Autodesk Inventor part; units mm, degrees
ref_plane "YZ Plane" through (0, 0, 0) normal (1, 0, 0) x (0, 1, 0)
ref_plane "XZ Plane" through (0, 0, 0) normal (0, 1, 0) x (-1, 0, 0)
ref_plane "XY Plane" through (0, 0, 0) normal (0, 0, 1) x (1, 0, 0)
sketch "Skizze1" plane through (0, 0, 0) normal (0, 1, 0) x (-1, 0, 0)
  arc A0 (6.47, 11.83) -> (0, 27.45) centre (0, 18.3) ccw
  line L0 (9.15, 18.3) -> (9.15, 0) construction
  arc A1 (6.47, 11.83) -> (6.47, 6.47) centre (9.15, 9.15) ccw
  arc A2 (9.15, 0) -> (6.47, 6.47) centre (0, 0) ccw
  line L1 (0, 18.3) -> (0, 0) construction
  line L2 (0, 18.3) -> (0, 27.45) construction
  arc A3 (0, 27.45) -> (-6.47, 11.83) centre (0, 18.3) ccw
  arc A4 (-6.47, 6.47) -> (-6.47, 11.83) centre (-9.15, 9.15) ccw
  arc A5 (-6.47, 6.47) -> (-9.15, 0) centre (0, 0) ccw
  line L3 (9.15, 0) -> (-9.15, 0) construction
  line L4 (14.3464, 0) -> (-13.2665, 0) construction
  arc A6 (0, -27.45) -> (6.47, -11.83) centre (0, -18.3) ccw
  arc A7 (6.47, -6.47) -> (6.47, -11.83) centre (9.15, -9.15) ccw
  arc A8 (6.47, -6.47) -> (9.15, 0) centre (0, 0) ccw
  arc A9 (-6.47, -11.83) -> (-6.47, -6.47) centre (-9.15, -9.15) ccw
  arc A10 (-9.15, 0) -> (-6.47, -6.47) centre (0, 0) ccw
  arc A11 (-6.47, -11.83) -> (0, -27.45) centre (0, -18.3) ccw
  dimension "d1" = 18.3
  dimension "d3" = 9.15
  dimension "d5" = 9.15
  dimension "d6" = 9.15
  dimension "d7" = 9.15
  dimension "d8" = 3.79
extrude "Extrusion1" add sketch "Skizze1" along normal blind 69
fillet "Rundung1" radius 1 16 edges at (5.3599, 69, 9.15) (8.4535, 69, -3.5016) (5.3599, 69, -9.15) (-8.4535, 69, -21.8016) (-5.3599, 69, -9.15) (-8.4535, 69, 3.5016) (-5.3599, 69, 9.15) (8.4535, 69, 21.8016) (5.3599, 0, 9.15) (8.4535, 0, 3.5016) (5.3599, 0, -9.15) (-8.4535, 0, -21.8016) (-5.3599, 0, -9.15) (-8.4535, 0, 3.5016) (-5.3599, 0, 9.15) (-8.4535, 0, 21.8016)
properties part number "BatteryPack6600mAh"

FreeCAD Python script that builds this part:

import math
import FreeCAD as App
import Part
import Sketcher

V = App.Vector


def edges_at(feature, points):
    """Names of the edges that pass closest to the given points."""
    edges = feature.Shape.Edges
    near = lambda p: min(range(len(edges)), key=lambda i: edges[i].distToShape(Part.Vertex(*p))[0])
    return sorted({f"Edge{near(p) + 1}" for p in points})

doc = App.newDocument("Part")
body = doc.addObject("PartDesign::Body", "Body")

# Sketch on XZ plane
sketch1 = body.newObject("Sketcher::SketchObject", "Sketch")
sketch1.AttachmentSupport = (doc.getObject("XZ_Plane"), [""])
sketch1.MapMode = "FlatFace"
sketch1.addGeometry(Part.ArcOfCircle(Part.Circle(V(-9.15, 9.15, 0), V(0, 0, 1), 3.790092), math.radians(-45), math.radians(45)), False)
sketch1.addGeometry(Part.ArcOfCircle(Part.Circle(V(0, 18.3, 0), V(0, 0, 1), 9.15), math.radians(90), math.radians(225)), False)
sketch1.addGeometry(Part.ArcOfCircle(Part.Circle(V(0, 18.3, 0), V(0, 0, 1), 9.149962), math.radians(-45), math.radians(90)), False)
sketch1.addGeometry(Part.ArcOfCircle(Part.Circle(V(9.15, 9.15, 0), V(0, 0, 1), 3.790092), math.radians(135), math.radians(225)), False)
sketch1.addGeometry(Part.ArcOfCircle(Part.Circle(V(0, 0, 0), V(0, 0, 1), 9.15), math.radians(0), math.radians(45)), False)
sketch1.addGeometry(Part.ArcOfCircle(Part.Circle(V(0, 0, 0), V(0, 0, 1), 9.149962), math.radians(-45), math.radians(0)), False)
sketch1.addGeometry(Part.ArcOfCircle(Part.Circle(V(9.15, -9.15, 0), V(0, 0, 1), 3.790092), math.radians(135), math.radians(225)), False)
sketch1.addGeometry(Part.ArcOfCircle(Part.Circle(V(0, -18.3, 0), V(0, 0, 1), 9.15), math.radians(-90), math.radians(45)), False)
sketch1.addGeometry(Part.ArcOfCircle(Part.Circle(V(0, -18.3, 0), V(0, 0, 1), 9.149962), math.radians(135), math.radians(270)), False)
sketch1.addGeometry(Part.ArcOfCircle(Part.Circle(V(-9.15, -9.15, 0), V(0, 0, 1), 3.790092), math.radians(-45), math.radians(45)), False)
sketch1.addGeometry(Part.ArcOfCircle(Part.Circle(V(0, 0, 0), V(0, 0, 1), 9.15), math.radians(180), math.radians(225)), False)
sketch1.addGeometry(Part.ArcOfCircle(Part.Circle(V(0, 0, 0), V(0, 0, 1), 9.149962), math.radians(135), math.radians(180)), False)
sketch1.addConstraint(Sketcher.Constraint("Tangent", 0, 2, 1, 2))
sketch1.addConstraint(Sketcher.Constraint("Tangent", 1, 1, 2, 2))
sketch1.addConstraint(Sketcher.Constraint("Tangent", 2, 1, 3, 1))
sketch1.addConstraint(Sketcher.Constraint("Tangent", 3, 2, 4, 2))
sketch1.addConstraint(Sketcher.Constraint("Tangent", 4, 1, 5, 2))
sketch1.addConstraint(Sketcher.Constraint("Tangent", 5, 1, 6, 1))
sketch1.addConstraint(Sketcher.Constraint("Tangent", 6, 2, 7, 2))
sketch1.addConstraint(Sketcher.Constraint("Tangent", 7, 1, 8, 2))
sketch1.addConstraint(Sketcher.Constraint("Tangent", 8, 1, 9, 1))
sketch1.addConstraint(Sketcher.Constraint("Tangent", 9, 2, 10, 2))
sketch1.addConstraint(Sketcher.Constraint("Tangent", 10, 1, 11, 2))
sketch1.addConstraint(Sketcher.Constraint("Tangent", 11, 1, 0, 1))
sketch1.addConstraint(Sketcher.Constraint("Coincident", 4, 3, -1, 1))
sketch1.addConstraint(Sketcher.Constraint("Coincident", 10, 3, -1, 1))
sketch1.addConstraint(Sketcher.Constraint("Equal", 1, 2))
sketch1.addConstraint(Sketcher.Constraint("Equal", 0, 3))
sketch1.addConstraint(Sketcher.Constraint("Equal", 2, 4))
sketch1.addConstraint(Sketcher.Constraint("Equal", 4, 5))
sketch1.addConstraint(Sketcher.Constraint("Equal", 3, 6))
sketch1.addConstraint(Sketcher.Constraint("Equal", 5, 7))
sketch1.addConstraint(Sketcher.Constraint("Equal", 7, 8))
sketch1.addConstraint(Sketcher.Constraint("Equal", 6, 9))
sketch1.addConstraint(Sketcher.Constraint("Equal", 8, 10))
sketch1.addConstraint(Sketcher.Constraint("Equal", 10, 11))
sketch1.addConstraint(Sketcher.Constraint("Symmetric", 1, 3, 7, 3, -1, 1))
sketch1.addConstraint(Sketcher.Constraint("PointOnObject", 1, 3, -2))
sketch1.addConstraint(Sketcher.Constraint("PointOnObject", 1, 1, -2))
sketch1.addConstraint(Sketcher.Constraint("PointOnObject", 4, 1, -1))
sketch1.addConstraint(Sketcher.Constraint("PointOnObject", 7, 1, -2))
sketch1.addConstraint(Sketcher.Constraint("PointOnObject", 10, 1, -1))
sketch1.addConstraint(Sketcher.Constraint("Vertical", 6, 3, 4, 1))
sketch1.addConstraint(Sketcher.Constraint("Radius", 0, 3.79))
sketch1.addConstraint(Sketcher.Constraint("Radius", 1, 9.15))
pad1 = body.newObject("PartDesign::Pad", "Pad")
pad1.Profile = sketch1
pad1.Length = 69
pad1.Reversed = True
doc.recompute()

fillet = body.newObject("PartDesign::Fillet", "Fillet")
fillet.Base = (pad1, edges_at(pad1, [
    (5.36, 69, 9.15),
    (8.454, 69, -3.502),
    (5.36, 69, -9.15),
    (-8.454, 69, -21.802),
    (-5.36, 69, -9.15),
    (-8.454, 69, 3.502),
    (-5.36, 69, 9.15),
    (8.454, 69, 21.802),
    (5.36, 0, 9.15),
    (8.454, 0, 3.502),
    (5.36, 0, -9.15),
    (-8.454, 0, -21.802),
    (-5.36, 0, -9.15),
    (-8.454, 0, 3.502),
    (-5.36, 0, 9.15),
    (-8.454, 0, 21.802),
]))
fillet.Radius = 1

doc.recompute()
